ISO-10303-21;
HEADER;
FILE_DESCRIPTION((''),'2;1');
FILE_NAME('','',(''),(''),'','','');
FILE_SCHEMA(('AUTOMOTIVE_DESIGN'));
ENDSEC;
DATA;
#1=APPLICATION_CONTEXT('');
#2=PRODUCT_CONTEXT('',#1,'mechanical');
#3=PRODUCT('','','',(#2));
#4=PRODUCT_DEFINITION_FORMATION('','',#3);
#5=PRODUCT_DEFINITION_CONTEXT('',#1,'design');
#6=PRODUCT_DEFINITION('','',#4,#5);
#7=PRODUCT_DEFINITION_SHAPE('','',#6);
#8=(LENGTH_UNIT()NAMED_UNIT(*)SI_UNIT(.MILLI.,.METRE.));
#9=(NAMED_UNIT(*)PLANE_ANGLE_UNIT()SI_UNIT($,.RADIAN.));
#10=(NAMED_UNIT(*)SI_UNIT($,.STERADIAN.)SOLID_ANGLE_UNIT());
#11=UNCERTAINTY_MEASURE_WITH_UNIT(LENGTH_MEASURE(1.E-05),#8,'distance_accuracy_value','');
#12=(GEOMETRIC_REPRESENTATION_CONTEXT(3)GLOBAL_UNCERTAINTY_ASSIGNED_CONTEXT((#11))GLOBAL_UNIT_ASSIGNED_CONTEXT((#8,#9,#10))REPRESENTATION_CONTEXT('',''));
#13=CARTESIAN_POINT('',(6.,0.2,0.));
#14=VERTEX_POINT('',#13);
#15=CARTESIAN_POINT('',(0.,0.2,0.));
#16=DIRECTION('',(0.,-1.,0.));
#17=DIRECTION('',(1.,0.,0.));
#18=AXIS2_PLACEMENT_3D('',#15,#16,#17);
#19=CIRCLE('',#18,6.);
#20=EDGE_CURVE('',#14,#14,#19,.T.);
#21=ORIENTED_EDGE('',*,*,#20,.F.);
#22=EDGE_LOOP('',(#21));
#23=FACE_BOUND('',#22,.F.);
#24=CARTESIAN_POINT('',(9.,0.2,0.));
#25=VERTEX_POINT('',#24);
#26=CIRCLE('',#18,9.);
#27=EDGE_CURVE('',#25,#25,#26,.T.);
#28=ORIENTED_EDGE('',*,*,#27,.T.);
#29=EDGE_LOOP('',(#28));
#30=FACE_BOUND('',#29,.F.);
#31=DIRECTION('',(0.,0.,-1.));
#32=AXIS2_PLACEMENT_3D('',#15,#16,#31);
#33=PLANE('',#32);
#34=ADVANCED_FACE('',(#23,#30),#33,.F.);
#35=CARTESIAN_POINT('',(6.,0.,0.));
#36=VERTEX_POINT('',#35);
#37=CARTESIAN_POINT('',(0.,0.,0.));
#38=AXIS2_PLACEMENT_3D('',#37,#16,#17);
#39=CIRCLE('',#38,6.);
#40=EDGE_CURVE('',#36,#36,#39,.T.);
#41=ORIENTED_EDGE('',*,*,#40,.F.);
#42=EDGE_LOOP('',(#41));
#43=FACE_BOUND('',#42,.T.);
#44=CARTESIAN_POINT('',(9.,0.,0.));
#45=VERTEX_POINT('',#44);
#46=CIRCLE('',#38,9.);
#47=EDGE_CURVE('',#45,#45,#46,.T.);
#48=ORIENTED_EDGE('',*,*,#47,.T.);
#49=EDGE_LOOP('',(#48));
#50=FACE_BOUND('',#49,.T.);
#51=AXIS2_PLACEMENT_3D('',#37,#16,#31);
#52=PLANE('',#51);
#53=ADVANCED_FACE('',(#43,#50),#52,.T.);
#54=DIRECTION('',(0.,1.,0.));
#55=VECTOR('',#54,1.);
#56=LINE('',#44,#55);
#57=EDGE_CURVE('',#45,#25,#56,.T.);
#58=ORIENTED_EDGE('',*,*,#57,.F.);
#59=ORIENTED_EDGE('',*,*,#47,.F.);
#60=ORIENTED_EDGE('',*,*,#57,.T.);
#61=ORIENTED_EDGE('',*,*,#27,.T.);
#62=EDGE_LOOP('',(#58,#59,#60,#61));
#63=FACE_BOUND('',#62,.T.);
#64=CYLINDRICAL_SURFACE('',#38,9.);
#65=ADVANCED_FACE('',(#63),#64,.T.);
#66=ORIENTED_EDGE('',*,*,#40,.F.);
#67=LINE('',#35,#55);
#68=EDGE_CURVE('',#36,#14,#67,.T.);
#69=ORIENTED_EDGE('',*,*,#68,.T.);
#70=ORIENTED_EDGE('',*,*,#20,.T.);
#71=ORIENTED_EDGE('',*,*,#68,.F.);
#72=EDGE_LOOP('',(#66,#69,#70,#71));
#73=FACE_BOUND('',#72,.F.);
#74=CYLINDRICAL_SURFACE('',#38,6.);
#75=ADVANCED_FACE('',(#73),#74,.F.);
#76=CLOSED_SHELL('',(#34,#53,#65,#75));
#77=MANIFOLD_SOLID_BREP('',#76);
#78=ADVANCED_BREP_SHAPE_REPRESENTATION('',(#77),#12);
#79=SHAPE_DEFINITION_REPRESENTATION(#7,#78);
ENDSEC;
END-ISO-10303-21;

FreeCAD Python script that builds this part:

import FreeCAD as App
import Part
import Sketcher

doc = App.newDocument("Part")
body = doc.addObject("PartDesign::Body", "Body")

# Sketch on XZ plane
sketch1 = body.newObject("Sketcher::SketchObject", "Sketch")
sketch1.AttachmentSupport = (doc.getObject("XZ_Plane"), [""])
sketch1.MapMode = "FlatFace"
sketch1.addGeometry([
    Part.Circle(App.Vector(0, 0, 0), App.Vector(0, 0, 1), 9),
    Part.Circle(App.Vector(0, 0, 0), App.Vector(0, 0, 1), 6),
], False)
sketch1.addConstraint([
    Sketcher.Constraint("Coincident", 0, 3, -1, 1),
    Sketcher.Constraint("Coincident", 1, 3, -1, 1),
    Sketcher.Constraint("Diameter", 0, 18.0),
    Sketcher.Constraint("Diameter", 1, 12.0),
])
pad1 = body.newObject("PartDesign::Pad", "Pad")
pad1.Profile = sketch1
pad1.Length = 0.2
pad1.Reversed = True

doc.recompute()
